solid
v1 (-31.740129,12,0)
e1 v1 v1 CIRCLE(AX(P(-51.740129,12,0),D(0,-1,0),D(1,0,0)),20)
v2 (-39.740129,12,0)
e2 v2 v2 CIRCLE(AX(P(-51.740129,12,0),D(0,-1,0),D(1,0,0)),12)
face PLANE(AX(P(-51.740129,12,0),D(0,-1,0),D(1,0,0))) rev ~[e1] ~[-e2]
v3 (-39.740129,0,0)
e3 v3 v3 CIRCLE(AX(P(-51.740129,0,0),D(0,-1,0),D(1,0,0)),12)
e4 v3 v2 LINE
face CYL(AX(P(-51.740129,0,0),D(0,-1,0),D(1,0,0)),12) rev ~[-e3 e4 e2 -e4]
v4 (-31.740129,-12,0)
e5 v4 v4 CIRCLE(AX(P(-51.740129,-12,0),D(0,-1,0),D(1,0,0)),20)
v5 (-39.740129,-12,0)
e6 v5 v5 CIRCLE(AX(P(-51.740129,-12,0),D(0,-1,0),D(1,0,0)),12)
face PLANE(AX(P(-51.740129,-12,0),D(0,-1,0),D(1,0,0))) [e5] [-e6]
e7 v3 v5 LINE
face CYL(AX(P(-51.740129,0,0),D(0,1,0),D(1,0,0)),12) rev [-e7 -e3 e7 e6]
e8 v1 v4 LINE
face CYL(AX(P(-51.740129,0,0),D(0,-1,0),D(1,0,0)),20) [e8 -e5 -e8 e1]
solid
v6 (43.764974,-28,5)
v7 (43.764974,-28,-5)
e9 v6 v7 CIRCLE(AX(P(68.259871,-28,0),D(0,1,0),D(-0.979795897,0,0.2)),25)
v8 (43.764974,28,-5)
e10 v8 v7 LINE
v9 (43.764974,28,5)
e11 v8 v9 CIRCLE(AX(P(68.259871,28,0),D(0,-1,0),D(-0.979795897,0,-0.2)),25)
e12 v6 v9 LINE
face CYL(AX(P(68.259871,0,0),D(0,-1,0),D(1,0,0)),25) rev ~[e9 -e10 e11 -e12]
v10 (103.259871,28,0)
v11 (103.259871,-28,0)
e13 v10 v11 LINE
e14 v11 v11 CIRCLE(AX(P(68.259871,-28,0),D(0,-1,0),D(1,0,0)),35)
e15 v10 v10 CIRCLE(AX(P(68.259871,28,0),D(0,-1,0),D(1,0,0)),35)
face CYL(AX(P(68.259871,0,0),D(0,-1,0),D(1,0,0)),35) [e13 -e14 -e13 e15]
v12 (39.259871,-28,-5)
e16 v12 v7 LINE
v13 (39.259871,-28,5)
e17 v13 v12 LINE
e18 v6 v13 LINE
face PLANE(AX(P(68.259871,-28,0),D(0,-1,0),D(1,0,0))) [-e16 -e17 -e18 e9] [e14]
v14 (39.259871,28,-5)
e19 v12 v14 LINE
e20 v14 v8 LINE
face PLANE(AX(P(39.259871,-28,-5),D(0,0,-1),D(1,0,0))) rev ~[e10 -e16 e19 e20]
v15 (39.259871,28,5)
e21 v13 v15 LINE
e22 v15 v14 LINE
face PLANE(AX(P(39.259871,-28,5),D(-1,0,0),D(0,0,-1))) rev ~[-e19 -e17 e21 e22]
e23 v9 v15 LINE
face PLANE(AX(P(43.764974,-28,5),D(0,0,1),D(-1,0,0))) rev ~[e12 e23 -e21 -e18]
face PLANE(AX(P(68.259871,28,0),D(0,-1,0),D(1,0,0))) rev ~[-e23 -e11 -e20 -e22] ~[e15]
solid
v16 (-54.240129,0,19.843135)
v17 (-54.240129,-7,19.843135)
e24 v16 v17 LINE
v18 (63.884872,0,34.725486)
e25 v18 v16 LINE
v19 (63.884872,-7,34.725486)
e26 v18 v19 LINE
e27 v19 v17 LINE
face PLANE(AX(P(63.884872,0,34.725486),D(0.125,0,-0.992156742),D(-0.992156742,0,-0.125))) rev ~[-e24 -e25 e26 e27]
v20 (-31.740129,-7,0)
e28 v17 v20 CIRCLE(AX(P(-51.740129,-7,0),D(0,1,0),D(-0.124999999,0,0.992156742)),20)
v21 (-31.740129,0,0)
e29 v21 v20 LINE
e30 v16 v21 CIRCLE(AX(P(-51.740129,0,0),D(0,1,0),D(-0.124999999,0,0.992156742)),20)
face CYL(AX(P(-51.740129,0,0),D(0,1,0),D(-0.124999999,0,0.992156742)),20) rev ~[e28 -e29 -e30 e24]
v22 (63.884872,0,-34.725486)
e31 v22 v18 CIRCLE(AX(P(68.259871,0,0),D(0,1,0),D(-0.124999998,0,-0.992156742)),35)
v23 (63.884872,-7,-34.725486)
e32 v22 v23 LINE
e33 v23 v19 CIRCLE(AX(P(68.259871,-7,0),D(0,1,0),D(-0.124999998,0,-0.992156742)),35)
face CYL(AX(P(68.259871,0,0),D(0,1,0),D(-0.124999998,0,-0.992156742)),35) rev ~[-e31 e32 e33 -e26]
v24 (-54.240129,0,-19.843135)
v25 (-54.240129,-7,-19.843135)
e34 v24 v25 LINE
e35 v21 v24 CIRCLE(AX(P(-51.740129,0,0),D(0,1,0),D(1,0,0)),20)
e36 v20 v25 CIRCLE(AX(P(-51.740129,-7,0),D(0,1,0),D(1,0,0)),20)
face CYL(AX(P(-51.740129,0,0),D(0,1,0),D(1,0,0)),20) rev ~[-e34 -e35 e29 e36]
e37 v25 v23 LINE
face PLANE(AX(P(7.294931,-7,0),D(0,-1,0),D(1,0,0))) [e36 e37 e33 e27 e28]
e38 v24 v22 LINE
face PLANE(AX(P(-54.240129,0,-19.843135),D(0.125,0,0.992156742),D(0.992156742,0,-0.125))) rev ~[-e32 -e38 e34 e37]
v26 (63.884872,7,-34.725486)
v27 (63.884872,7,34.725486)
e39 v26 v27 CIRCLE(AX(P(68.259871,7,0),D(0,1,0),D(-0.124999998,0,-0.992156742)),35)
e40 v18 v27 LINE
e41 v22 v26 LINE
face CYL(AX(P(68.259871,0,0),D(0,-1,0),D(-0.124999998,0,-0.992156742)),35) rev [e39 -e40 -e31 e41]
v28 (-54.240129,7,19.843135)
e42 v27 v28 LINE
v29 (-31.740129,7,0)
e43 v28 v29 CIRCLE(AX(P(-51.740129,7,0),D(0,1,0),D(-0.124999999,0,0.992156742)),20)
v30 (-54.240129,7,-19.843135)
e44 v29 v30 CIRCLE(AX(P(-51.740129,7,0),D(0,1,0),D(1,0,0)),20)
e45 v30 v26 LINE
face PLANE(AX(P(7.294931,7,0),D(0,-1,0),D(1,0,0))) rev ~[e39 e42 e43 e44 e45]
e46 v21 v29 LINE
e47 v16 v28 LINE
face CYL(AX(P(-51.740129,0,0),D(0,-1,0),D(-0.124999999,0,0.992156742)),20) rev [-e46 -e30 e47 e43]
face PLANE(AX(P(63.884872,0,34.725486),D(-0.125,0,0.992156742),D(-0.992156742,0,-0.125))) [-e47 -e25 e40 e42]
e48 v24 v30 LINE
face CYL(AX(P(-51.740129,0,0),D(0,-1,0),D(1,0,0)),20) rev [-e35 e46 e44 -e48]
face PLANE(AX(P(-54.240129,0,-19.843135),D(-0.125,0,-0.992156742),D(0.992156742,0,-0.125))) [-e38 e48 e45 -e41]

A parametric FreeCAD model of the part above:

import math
import FreeCAD as App
import Part
import Sketcher
from FreeCAD import Vector

doc = App.newDocument("Part")
params = doc.addObject("Spreadsheet::Sheet", "Params")
for row, (alias, value) in enumerate([
    ("sketch1_diameter", "40 mm"),
    ("sketch1_diameter2", "24 mm"),
    ("pad1_length", "12 mm"),
    ("pad1_length2", "12 mm"),
    ("sketch2_diameter", "70 mm"),
    ("sketch2_diameter2", "50 mm"),
    ("pad2_length", "28 mm"),
    ("pad2_length2", "28 mm"),
    ("sketch3_radius", "25 mm"),
    ("sketch3_height", "10 mm"),
    ("pocket1_length", "69.4 mm"),
    ("sketch4_radius", "20 mm"),
    ("sketch4_radius2", "35 mm"),
    ("pad3_length", "7 mm"),
    ("pad3_length2", "7 mm"),
], start=1):
    params.set(f"A{row}", alias)
    params.set(f"B{row}", "=" + value)
    params.setAlias(f"B{row}", alias)

body = doc.addObject("PartDesign::Body", "Body")

sketch1 = body.newObject("Sketcher::SketchObject", "Sketch")
sketch1.AttachmentSupport = (doc.getObject("XZ_Plane"), [""])
sketch1.MapMode = "FlatFace"
sketch1.addGeometry(Part.Circle(Vector(-51.740129, 0, 0), Vector(0, 0, 1), 20), False)
sketch1.addGeometry(Part.Circle(Vector(-51.740129, 0, 0), Vector(0, 0, 1), 12), False)
sketch1.addConstraint(Sketcher.Constraint("Coincident", 1, 3, 0, 3))
sketch1.addConstraint(Sketcher.Constraint("PointOnObject", 0, 3, -1))
sketch1.addConstraint(Sketcher.Constraint("Diameter", 0, 40.0))
sketch1.addConstraint(Sketcher.Constraint("Diameter", 1, 24.0))
sketch1.addConstraint(Sketcher.Constraint("DistanceX", 0, 3, -1, 1, 51.740129))
sketch1.setExpression("Constraints[2]", "Params.sketch1_diameter")
sketch1.setExpression("Constraints[3]", "Params.sketch1_diameter2")
pad1 = body.newObject("PartDesign::Pad", "Pad")
pad1.Profile = sketch1
pad1.Type = "TwoLengths"
pad1.setExpression("Length", "Params.pad1_length")
pad1.setExpression("Length2", "Params.pad1_length2")
body2 = doc.addObject("PartDesign::Body", "Body001")

sketch2 = body2.newObject("Sketcher::SketchObject", "Sketch001")
sketch2.AttachmentSupport = (doc.getObject("XZ_Plane001"), [""])
sketch2.MapMode = "FlatFace"
sketch2.addGeometry(Part.Circle(Vector(68.259871, 0, 0), Vector(0, 0, 1), 35), False)
sketch2.addGeometry(Part.Circle(Vector(68.259871, 0, 0), Vector(0, 0, 1), 25), False)
sketch2.addConstraint(Sketcher.Constraint("Coincident", 1, 3, 0, 3))
sketch2.addConstraint(Sketcher.Constraint("PointOnObject", 0, 3, -1))
sketch2.addConstraint(Sketcher.Constraint("Diameter", 0, 70.0))
sketch2.addConstraint(Sketcher.Constraint("Diameter", 1, 50.0))
sketch2.addConstraint(Sketcher.Constraint("DistanceX", -1, 1, 0, 3, 68.259871))
sketch2.setExpression("Constraints[2]", "Params.sketch2_diameter")
sketch2.setExpression("Constraints[3]", "Params.sketch2_diameter2")
pad2 = body2.newObject("PartDesign::Pad", "Pad001")
pad2.Profile = sketch2
pad2.Type = "TwoLengths"
pad2.setExpression("Length", "Params.pad2_length")
pad2.setExpression("Length2", "Params.pad2_length2")

sketch3 = body2.newObject("Sketcher::SketchObject", "Sketch002")
sketch3.AttachmentSupport = (doc.getObject("XZ_Plane001"), [""])
sketch3.MapMode = "FlatFace"
sketch3.AttachmentOffset = App.Placement(Vector(0, 0, 28), App.Rotation())
sketch3.addGeometry(Part.ArcOfCircle(Part.Circle(Vector(68.259871, 0, 0), Vector(0, 0, 1), 25), math.radians(168.463041), math.radians(180)), False)
sketch3.addGeometry(Part.LineSegment(Vector(43.764974, 5, 0), Vector(39.259871, 5, 0)), False)
sketch3.addGeometry(Part.LineSegment(Vector(39.259871, 5, 0), Vector(39.259871, -5, 0)), False)
sketch3.addGeometry(Part.LineSegment(Vector(39.259871, -5, 0), Vector(43.764974, -5, 0)), False)
sketch3.addGeometry(Part.ArcOfCircle(Part.Circle(Vector(68.259871, 0, 0), Vector(0, 0, 1), 25), math.radians(180), math.radians(191.536959)), False)
sketch3.addConstraint(Sketcher.Constraint("Coincident", 0, 1, 1, 1))
sketch3.addConstraint(Sketcher.Constraint("Coincident", 1, 2, 2, 1))
sketch3.addConstraint(Sketcher.Constraint("Coincident", 2, 2, 3, 1))
sketch3.addConstraint(Sketcher.Constraint("Coincident", 3, 2, 4, 2))
sketch3.addConstraint(Sketcher.Constraint("Tangent", 4, 1, 0, 2))
sketch3.addConstraint(Sketcher.Constraint("Horizontal", 1))
sketch3.addConstraint(Sketcher.Constraint("Vertical", 2))
sketch3.addConstraint(Sketcher.Constraint("Horizontal", 3))
sketch3.addConstraint(Sketcher.Constraint("Equal", 0, 4))
sketch3.addConstraint(Sketcher.Constraint("Symmetric", 0, 1, 3, 2, -1))
sketch3.addConstraint(Sketcher.Constraint("PointOnObject", 4, 1, -1))
sketch3.addConstraint(Sketcher.Constraint("Radius", 0, 25.0))
sketch3.addConstraint(Sketcher.Constraint("DistanceY", 2, 2, 2, 1, 10.0))
sketch3.addConstraint(Sketcher.Constraint("DistanceX", 1, 2, 0, 3, 29.0))
sketch3.addConstraint(Sketcher.Constraint("DistanceX", -1, 1, 0, 3, 68.259871))
sketch3.setExpression("Constraints[11]", "Params.sketch3_radius")
sketch3.setExpression("Constraints[12]", "Params.sketch3_height")
pocket1 = body2.newObject("PartDesign::Pocket", "Pocket")
pocket1.Profile = sketch3
pocket1.setExpression("Length", "Params.pocket1_length")
body3 = doc.addObject("PartDesign::Body", "Body002")

sketch4 = body3.newObject("Sketcher::SketchObject", "Sketch003")
sketch4.AttachmentSupport = (doc.getObject("XZ_Plane002"), [""])
sketch4.MapMode = "FlatFace"
sketch4.addGeometry(Part.ArcOfCircle(Part.Circle(Vector(-51.740129, 0, 0), Vector(0, 0, 1), 20), math.radians(-97.180756), math.radians(0)), False)
sketch4.addGeometry(Part.LineSegment(Vector(-54.240129, -19.843135, 0), Vector(63.884872, -34.725486, 0)), False)
sketch4.addGeometry(Part.ArcOfCircle(Part.Circle(Vector(68.259871, 0, 0), Vector(0, 0, 1), 35), math.radians(97.180755), math.radians(262.819244)), False)
sketch4.addGeometry(Part.LineSegment(Vector(63.884872, 34.725486, 0), Vector(-54.240129, 19.843135, 0)), False)
sketch4.addGeometry(Part.ArcOfCircle(Part.Circle(Vector(-51.740129, 0, 0), Vector(0, 0, 1), 20), math.radians(0), math.radians(97.180756)), False)
sketch4.addConstraint(Sketcher.Constraint("Tangent", 0, 1, 1, 1))
sketch4.addConstraint(Sketcher.Constraint("Tangent", 1, 2, 2, 2))
sketch4.addConstraint(Sketcher.Constraint("Tangent", 2, 1, 3, 1))
sketch4.addConstraint(Sketcher.Constraint("Tangent", 3, 2, 4, 2))
sketch4.addConstraint(Sketcher.Constraint("Tangent", 4, 1, 0, 2))
sketch4.addConstraint(Sketcher.Constraint("Equal", 0, 4))
sketch4.addConstraint(Sketcher.Constraint("Symmetric", 1, 2, 2, 1, -1))
sketch4.addConstraint(Sketcher.Constraint("PointOnObject", 4, 1, -1))
sketch4.addConstraint(Sketcher.Constraint("Radius", 0, 20.0))
sketch4.addConstraint(Sketcher.Constraint("Radius", 2, 35.0))
sketch4.addConstraint(Sketcher.Constraint("DistanceX", 0, 3, 2, 3, 120.0))
sketch4.addConstraint(Sketcher.Constraint("DistanceX", 0, 3, -1, 1, 51.740129))
sketch4.setExpression("Constraints[8]", "Params.sketch4_radius")
sketch4.setExpression("Constraints[9]", "Params.sketch4_radius2")
pad3 = body3.newObject("PartDesign::Pad", "Pad002")
pad3.Profile = sketch4
pad3.Type = "TwoLengths"
pad3.setExpression("Length", "Params.pad3_length")
pad3.setExpression("Length2", "Params.pad3_length2")

doc.recompute()
